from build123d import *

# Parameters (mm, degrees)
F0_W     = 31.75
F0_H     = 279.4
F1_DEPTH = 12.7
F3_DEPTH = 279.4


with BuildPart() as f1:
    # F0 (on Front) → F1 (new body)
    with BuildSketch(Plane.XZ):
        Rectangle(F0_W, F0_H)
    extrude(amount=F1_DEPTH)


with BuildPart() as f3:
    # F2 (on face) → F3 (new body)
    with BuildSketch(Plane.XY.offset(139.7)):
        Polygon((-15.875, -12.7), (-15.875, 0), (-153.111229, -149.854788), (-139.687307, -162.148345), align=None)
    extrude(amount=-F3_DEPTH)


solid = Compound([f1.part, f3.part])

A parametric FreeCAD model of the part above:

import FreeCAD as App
import Part
import Sketcher
from FreeCAD import Vector
Q = App.Units.Quantity


def add_polygon(sketch, points):
    """Adds a closed chain of lines whose ends are joined by coincident constraints."""
    first, n = sketch.GeometryCount, len(points)
    for a, b in zip(points, points[1:] + points[:1]):
        sketch.addGeometry(Part.LineSegment(App.Vector(*a, 0), App.Vector(*b, 0)), False)
    for i in range(n):
        sketch.addConstraint(Sketcher.Constraint("Coincident", first + i, 2, first + (i + 1) % n, 1))

doc = App.newDocument("Part")
body = doc.addObject("PartDesign::Body", "Body")

# Sketch on XZ plane
sketch1 = body.newObject("Sketcher::SketchObject", "Sketch")
sketch1.AttachmentSupport = (doc.getObject("XZ_Plane"), [""])
sketch1.MapMode = "FlatFace"
add_polygon(sketch1, [(-16, 140), (-16, -140), (16, -140), (16, 140)])  # lines 0-3
sketch1.addConstraint(Sketcher.Constraint("Vertical", 0))
sketch1.addConstraint(Sketcher.Constraint("Horizontal", 1))
sketch1.addConstraint(Sketcher.Constraint("Vertical", 2))
sketch1.addConstraint(Sketcher.Constraint("Horizontal", 3))
sketch1.addConstraint(Sketcher.Constraint("Symmetric", 0, 2, 2, 2, -1, 1))
sketch1.addConstraint(Sketcher.Constraint("DistanceY", 0, 2, 0, 1, Q("11 in")))
sketch1.addConstraint(Sketcher.Constraint("DistanceX", 1, 1, 1, 2, Q("1.25 in")))
pad1 = body.newObject("PartDesign::Pad", "Pad")
pad1.Profile = sketch1
pad1.Length = Q("0.5 in")
body2 = doc.addObject("PartDesign::Body", "Body001")

# Sketch on XY plane
sketch2 = body2.newObject("Sketcher::SketchObject", "Sketch001")
sketch2.AttachmentSupport = (doc.getObject("XY_Plane001"), [""])
sketch2.MapMode = "FlatFace"
sketch2.AttachmentOffset = App.Placement(Vector(0, 0, 5.5 * 25.4), App.Rotation())
add_polygon(sketch2, [(-16, -13), (-16, 0), (-153, -150), (-140, -162)])  # lines 0-3
sketch2.addConstraint(Sketcher.Constraint("Vertical", 0))
sketch2.addConstraint(Sketcher.Constraint("PointOnObject", 0, 2, -1))
sketch2.addConstraint(Sketcher.Constraint("Perpendicular", 1, 2))
sketch2.addConstraint(Sketcher.Constraint("Distance", 1, Q("8 in")))
sketch2.addConstraint(Sketcher.Constraint("DistanceY", 0, 1, 0, 2, Q("0.5 in")))
sketch2.addConstraint(Sketcher.Constraint("DistanceX", 0, 2, -1, 1, Q("0.625 in")))
sketch2.addConstraint(Sketcher.Constraint("Distance", 2, 18.202561))
sketch2.addConstraint(Sketcher.Constraint("DistanceX", 1, 2, -1, 1, 153.111229))
pad2 = body2.newObject("PartDesign::Pad", "Pad001")
pad2.Profile = sketch2
pad2.Length = Q("11 in")
pad2.Reversed = True

doc.recompute()
